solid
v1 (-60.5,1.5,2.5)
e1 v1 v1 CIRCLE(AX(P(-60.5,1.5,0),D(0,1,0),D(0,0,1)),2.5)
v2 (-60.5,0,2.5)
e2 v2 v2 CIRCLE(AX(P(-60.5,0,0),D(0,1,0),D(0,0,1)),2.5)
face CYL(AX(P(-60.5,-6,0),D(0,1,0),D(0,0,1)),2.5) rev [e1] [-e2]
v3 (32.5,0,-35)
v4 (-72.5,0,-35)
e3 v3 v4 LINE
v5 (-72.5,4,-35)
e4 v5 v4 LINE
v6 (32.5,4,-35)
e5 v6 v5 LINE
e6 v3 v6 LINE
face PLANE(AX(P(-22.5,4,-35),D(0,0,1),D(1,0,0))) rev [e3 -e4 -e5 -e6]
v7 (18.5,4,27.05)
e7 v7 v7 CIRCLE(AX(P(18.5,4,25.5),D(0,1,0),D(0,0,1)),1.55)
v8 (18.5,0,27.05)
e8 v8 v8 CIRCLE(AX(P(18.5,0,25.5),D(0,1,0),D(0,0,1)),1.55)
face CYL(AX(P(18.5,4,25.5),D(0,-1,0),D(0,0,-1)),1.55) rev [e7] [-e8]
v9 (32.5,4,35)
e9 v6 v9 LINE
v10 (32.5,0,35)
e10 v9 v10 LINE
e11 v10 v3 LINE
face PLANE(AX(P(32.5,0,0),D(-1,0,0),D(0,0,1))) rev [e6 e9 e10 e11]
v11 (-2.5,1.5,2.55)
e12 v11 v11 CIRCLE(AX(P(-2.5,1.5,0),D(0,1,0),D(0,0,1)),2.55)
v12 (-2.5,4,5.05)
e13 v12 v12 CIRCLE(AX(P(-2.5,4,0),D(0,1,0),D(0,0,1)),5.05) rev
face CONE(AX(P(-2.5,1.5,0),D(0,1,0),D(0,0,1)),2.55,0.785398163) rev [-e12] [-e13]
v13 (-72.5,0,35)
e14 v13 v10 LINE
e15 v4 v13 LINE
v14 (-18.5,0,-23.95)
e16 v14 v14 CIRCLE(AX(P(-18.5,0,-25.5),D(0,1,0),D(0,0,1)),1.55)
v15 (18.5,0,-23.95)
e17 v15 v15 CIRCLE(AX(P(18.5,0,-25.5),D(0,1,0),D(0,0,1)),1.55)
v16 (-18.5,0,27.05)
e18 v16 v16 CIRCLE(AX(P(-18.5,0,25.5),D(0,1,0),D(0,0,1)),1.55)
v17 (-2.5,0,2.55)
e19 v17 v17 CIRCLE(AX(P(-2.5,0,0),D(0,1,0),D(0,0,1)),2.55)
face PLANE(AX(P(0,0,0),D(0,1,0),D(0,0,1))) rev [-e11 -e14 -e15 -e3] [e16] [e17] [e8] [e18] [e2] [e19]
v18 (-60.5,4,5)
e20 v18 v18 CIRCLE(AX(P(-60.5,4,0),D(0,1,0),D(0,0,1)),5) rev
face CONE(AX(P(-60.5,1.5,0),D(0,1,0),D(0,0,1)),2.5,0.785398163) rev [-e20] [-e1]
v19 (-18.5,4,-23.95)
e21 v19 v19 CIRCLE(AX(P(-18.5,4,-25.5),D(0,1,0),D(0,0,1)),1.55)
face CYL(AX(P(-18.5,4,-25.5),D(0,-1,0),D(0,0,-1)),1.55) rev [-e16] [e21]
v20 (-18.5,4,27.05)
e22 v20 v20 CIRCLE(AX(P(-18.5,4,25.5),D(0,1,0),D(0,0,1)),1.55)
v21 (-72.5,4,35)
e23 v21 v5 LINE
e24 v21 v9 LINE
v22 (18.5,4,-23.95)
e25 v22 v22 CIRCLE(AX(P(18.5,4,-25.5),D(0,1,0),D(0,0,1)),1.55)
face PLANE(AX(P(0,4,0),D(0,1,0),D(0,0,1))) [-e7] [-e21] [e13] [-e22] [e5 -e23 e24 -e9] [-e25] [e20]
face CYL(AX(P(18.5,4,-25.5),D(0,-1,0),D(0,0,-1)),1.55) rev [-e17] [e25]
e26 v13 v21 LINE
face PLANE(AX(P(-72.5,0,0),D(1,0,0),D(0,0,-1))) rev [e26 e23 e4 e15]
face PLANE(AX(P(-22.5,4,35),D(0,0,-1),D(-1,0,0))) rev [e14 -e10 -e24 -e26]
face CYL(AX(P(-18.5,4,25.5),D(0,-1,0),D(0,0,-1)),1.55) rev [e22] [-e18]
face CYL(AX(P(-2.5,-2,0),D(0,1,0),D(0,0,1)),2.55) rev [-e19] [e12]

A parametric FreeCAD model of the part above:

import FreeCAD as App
import Part
import Sketcher
from FreeCAD import Vector


def edges_at(feature, points):
    """Names of the edges that pass closest to the given points."""
    edges = feature.Shape.Edges
    near = lambda p: min(range(len(edges)), key=lambda i: edges[i].distToShape(Part.Vertex(*p))[0])
    return sorted({f"Edge{near(p) + 1}" for p in points})


def add_polygon(sketch, points):
    """Adds a closed chain of lines whose ends are joined by coincident constraints."""
    first, n = sketch.GeometryCount, len(points)
    for a, b in zip(points, points[1:] + points[:1]):
        sketch.addGeometry(Part.LineSegment(App.Vector(*a, 0), App.Vector(*b, 0)), False)
    for i in range(n):
        sketch.addConstraint(Sketcher.Constraint("Coincident", first + i, 2, first + (i + 1) % n, 1))

doc = App.newDocument("Part")
body = doc.addObject("PartDesign::Body", "Body")

# Sketch on XZ plane
sketch1 = body.newObject("Sketcher::SketchObject", "Sketch")
sketch1.AttachmentSupport = (doc.getObject("XZ_Plane"), [""])
sketch1.MapMode = "FlatFace"
add_polygon(sketch1, [(-22.5, -35), (-22.5, 35), (22.5, 35), (22.5, -35)])  # lines 0-3
sketch1.addGeometry(Part.Circle(Vector(-18.5, 25.5, 0), Vector(0, 0, 1), 1.6), False)  # 4
sketch1.addGeometry(Part.Circle(Vector(18.5, 25.5, 0), Vector(0, 0, 1), 1.6), False)  # 5
sketch1.addGeometry(Part.Circle(Vector(-18.5, -25.5, 0), Vector(0, 0, 1), 1.6), False)  # 6
sketch1.addGeometry(Part.Circle(Vector(18.5, -25.5, 0), Vector(0, 0, 1), 1.6), False)  # 7
sketch1.addConstraint(Sketcher.Constraint("Vertical", 0))
sketch1.addConstraint(Sketcher.Constraint("Horizontal", 1))
sketch1.addConstraint(Sketcher.Constraint("Vertical", 2))
sketch1.addConstraint(Sketcher.Constraint("Horizontal", 3))
sketch1.addConstraint(Sketcher.Constraint("Equal", 4, 5))
sketch1.addConstraint(Sketcher.Constraint("Equal", 5, 6))
sketch1.addConstraint(Sketcher.Constraint("Equal", 6, 7))
sketch1.addConstraint(Sketcher.Constraint("Symmetric", 5, 3, 6, 3, -1, 1))
sketch1.addConstraint(Sketcher.Constraint("Symmetric", 4, 3, 7, 3, -1, 1))
sketch1.addConstraint(Sketcher.Constraint("Symmetric", 0, 2, 2, 2, -1, 1))
sketch1.addConstraint(Sketcher.Constraint("Symmetric", 4, 3, 5, 3, -2))
sketch1.addConstraint(Sketcher.Constraint("Diameter", 4, 3.1))
sketch1.addConstraint(Sketcher.Constraint("DistanceX", 1, 1, 1, 2, 45.0))
sketch1.addConstraint(Sketcher.Constraint("DistanceY", 0, 1, 0, 2, 70.0))
sketch1.addConstraint(Sketcher.Constraint("DistanceX", 4, 3, 5, 3, 37.0))
sketch1.addConstraint(Sketcher.Constraint("DistanceY", 6, 3, 4, 3, 51.0))
pad1 = body.newObject("PartDesign::Pad", "Pad")
pad1.Profile = sketch1
pad1.Length = 4
pad1.Reversed = True

# Sketch on YZ plane
sketch2 = body.newObject("Sketcher::SketchObject", "Sketch001")
sketch2.AttachmentSupport = (doc.getObject("YZ_Plane"), [""])
sketch2.MapMode = "FlatFace"
sketch2.AttachmentOffset = App.Placement(Vector(0, 0, -22.5), App.Rotation())
add_polygon(sketch2, [(4, -35), (0, -35), (0, 35), (4, 35)])  # lines 0-3
sketch2.addConstraint(Sketcher.Constraint("Horizontal", 0))
sketch2.addConstraint(Sketcher.Constraint("Vertical", 1))
sketch2.addConstraint(Sketcher.Constraint("Horizontal", 2))
sketch2.addConstraint(Sketcher.Constraint("Vertical", 3))
sketch2.addConstraint(Sketcher.Constraint("Symmetric", 0, 2, 1, 2, -1, 1))
sketch2.addConstraint(Sketcher.Constraint("DistanceX", 0, 2, 0, 1, 4.0))
sketch2.addConstraint(Sketcher.Constraint("DistanceY", 1, 1, 1, 2, 70.0))
pad2 = body.newObject("PartDesign::Pad", "Pad001")
pad2.Profile = sketch2
pad2.Length = 40
pad2.Reversed = True

# Sketch on XZ plane
sketch3 = body.newObject("Sketcher::SketchObject", "Sketch002")
sketch3.AttachmentSupport = (doc.getObject("XZ_Plane"), [""])
sketch3.MapMode = "FlatFace"
sketch3.AttachmentOffset = App.Placement(Vector(0, 0, -4), App.Rotation())
sketch3.addGeometry(Part.Circle(Vector(-2.5, 0, 0), Vector(0, 0, 1), 2.5), False)
sketch3.addConstraint(Sketcher.Constraint("PointOnObject", 0, 3, -1))
sketch3.addConstraint(Sketcher.Constraint("Diameter", 0, 5.1))
sketch3.addConstraint(Sketcher.Constraint("DistanceX", 0, 3, -1, 1, 2.5))
pocket1 = body.newObject("PartDesign::Pocket", "Pocket")
pocket1.Profile = sketch3
pocket1.Length = 6
pocket1.Reversed = True
doc.recompute()

chamfer = body.newObject("PartDesign::Chamfer", "Chamfer")
chamfer.Base = (pocket1, edges_at(pocket1, [(-5.05, 4, 0)]))
chamfer.Size = 2.5

# Sketch on YZ plane
sketch4 = body.newObject("Sketcher::SketchObject", "Sketch003")
sketch4.AttachmentSupport = (doc.getObject("YZ_Plane"), [""])
sketch4.MapMode = "FlatFace"
sketch4.AttachmentOffset = App.Placement(Vector(0, 0, 22.5), App.Rotation())
add_polygon(sketch4, [(4, 35), (0, 35), (0, -35), (4, -35)])  # lines 0-3
sketch4.addConstraint(Sketcher.Constraint("Horizontal", 0))
sketch4.addConstraint(Sketcher.Constraint("Vertical", 1))
sketch4.addConstraint(Sketcher.Constraint("Horizontal", 2))
sketch4.addConstraint(Sketcher.Constraint("Vertical", 3))
sketch4.addConstraint(Sketcher.Constraint("Symmetric", 0, 2, 1, 2, -1, 1))
sketch4.addConstraint(Sketcher.Constraint("DistanceX", 0, 2, 0, 1, 4.0))
sketch4.addConstraint(Sketcher.Constraint("DistanceY", 1, 2, 1, 1, 70.0))
pad3 = body.newObject("PartDesign::Pad", "Pad002")
pad3.Profile = sketch4
pad3.Length = 10

# Sketch on YZ plane
sketch5 = body.newObject("Sketcher::SketchObject", "Sketch004")
sketch5.AttachmentSupport = (doc.getObject("YZ_Plane"), [""])
sketch5.MapMode = "FlatFace"
sketch5.AttachmentOffset = App.Placement(Vector(0, 0, -62.5), App.Rotation())
add_polygon(sketch5, [(4, -35), (0, -35), (0, 35), (4, 35)])  # lines 0-3
sketch5.addConstraint(Sketcher.Constraint("Horizontal", 0))
sketch5.addConstraint(Sketcher.Constraint("Vertical", 1))
sketch5.addConstraint(Sketcher.Constraint("Horizontal", 2))
sketch5.addConstraint(Sketcher.Constraint("Vertical", 3))
sketch5.addConstraint(Sketcher.Constraint("Symmetric", 0, 2, 1, 2, -1, 1))
sketch5.addConstraint(Sketcher.Constraint("DistanceX", 0, 2, 0, 1, 4.0))
sketch5.addConstraint(Sketcher.Constraint("DistanceY", 1, 1, 1, 2, 70.0))
pad4 = body.newObject("PartDesign::Pad", "Pad003")
pad4.Profile = sketch5
pad4.Length = 10
pad4.Reversed = True

# Sketch on XZ plane
sketch6 = body.newObject("Sketcher::SketchObject", "Sketch005")
sketch6.AttachmentSupport = (doc.getObject("XZ_Plane"), [""])
sketch6.MapMode = "FlatFace"
sketch6.AttachmentOffset = App.Placement(Vector(0, 0, -4), App.Rotation())
sketch6.addGeometry(Part.Circle(Vector(-60.5, 0, 0), Vector(0, 0, 1), 2.5), False)
sketch6.addConstraint(Sketcher.Constraint("PointOnObject", 0, 3, -1))
sketch6.addConstraint(Sketcher.Constraint("Diameter", 0, 5.0))
sketch6.addConstraint(Sketcher.Constraint("DistanceX", 0, 3, -1, 1, 60.5))
pocket2 = body.newObject("PartDesign::Pocket", "Pocket001")
pocket2.Profile = sketch6
pocket2.Length = 10
pocket2.Reversed = True
doc.recompute()

chamfer2 = body.newObject("PartDesign::Chamfer", "Chamfer001")
chamfer2.Base = (pocket2, edges_at(pocket2, [(-63, 4, 0)]))
chamfer2.Size = 2.5

doc.recompute()
